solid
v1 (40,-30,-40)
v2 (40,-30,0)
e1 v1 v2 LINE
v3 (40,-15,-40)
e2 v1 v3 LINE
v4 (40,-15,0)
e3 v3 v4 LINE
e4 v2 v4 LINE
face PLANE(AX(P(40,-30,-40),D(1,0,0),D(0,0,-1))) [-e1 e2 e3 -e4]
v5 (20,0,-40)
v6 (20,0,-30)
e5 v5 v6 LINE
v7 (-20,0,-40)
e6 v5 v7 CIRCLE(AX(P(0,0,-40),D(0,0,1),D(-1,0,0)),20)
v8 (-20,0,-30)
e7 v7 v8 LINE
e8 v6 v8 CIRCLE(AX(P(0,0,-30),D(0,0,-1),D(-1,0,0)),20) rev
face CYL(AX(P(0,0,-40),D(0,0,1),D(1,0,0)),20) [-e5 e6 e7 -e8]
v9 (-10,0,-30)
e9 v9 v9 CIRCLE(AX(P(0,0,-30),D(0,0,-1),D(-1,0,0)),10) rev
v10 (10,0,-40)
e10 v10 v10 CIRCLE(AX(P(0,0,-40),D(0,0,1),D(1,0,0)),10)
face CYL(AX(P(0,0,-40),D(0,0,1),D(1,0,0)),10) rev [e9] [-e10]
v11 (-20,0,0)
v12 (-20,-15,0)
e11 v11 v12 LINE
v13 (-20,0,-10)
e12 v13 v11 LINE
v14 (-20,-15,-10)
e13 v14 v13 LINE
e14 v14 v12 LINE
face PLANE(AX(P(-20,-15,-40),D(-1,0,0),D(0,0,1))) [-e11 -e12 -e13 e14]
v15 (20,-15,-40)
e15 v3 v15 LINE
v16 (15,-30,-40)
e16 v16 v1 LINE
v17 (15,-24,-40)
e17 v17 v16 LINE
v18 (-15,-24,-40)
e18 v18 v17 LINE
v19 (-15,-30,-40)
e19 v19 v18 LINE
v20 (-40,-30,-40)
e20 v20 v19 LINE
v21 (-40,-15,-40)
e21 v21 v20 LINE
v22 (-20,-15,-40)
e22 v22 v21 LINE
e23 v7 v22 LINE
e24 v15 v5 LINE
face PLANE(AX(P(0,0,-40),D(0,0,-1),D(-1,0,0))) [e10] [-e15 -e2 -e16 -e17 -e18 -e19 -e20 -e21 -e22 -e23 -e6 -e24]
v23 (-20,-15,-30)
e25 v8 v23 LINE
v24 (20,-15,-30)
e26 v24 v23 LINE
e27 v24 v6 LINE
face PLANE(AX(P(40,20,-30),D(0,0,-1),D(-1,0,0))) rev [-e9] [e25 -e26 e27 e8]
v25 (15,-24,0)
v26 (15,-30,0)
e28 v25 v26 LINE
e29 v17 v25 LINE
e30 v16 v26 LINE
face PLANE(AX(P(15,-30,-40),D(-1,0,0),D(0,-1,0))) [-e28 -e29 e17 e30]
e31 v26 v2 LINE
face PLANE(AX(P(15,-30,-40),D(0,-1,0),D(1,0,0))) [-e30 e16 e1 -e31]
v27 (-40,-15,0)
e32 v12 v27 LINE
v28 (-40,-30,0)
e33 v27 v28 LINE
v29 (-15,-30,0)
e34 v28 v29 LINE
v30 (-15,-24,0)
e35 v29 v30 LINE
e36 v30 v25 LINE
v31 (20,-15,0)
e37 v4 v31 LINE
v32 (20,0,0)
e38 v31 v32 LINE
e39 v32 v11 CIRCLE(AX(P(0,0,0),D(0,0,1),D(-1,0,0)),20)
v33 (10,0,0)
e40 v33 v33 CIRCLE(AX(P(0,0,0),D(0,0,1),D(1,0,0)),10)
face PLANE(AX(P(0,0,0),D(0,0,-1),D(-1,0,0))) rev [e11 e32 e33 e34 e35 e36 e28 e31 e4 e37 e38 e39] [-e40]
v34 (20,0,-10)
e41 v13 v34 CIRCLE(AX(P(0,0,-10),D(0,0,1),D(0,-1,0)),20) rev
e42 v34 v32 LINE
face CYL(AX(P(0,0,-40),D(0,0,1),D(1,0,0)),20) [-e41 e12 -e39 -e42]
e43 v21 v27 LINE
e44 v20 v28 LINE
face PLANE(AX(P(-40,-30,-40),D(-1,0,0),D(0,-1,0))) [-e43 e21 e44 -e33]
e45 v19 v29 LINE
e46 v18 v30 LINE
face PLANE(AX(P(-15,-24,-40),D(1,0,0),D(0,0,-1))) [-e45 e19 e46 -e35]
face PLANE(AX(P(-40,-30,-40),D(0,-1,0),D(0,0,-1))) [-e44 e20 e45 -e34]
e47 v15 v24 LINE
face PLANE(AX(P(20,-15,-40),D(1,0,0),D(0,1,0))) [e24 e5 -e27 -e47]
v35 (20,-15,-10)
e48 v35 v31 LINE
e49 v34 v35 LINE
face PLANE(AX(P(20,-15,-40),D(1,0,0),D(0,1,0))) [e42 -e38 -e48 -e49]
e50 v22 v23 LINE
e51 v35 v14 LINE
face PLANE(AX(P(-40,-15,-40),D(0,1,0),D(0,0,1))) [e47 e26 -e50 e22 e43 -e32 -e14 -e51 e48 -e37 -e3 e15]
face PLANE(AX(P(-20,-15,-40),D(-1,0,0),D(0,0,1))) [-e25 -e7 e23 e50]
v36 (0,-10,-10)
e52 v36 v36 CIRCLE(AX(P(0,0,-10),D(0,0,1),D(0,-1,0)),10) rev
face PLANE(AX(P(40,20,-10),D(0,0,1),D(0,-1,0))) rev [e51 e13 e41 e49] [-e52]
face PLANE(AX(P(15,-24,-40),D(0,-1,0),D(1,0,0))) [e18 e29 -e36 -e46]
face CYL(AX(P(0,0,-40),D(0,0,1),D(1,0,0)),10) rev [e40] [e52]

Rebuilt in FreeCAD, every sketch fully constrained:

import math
import FreeCAD as App
import Part
import Sketcher
from FreeCAD import Vector
Q = App.Units.Quantity


def add_polygon(sketch, points):
    """Adds a closed chain of lines whose ends are joined by coincident constraints."""
    first, n = sketch.GeometryCount, len(points)
    for a, b in zip(points, points[1:] + points[:1]):
        sketch.addGeometry(Part.LineSegment(App.Vector(*a, 0), App.Vector(*b, 0)), False)
    for i in range(n):
        sketch.addConstraint(Sketcher.Constraint("Coincident", first + i, 2, first + (i + 1) % n, 1))

doc = App.newDocument("Part")
body = doc.addObject("PartDesign::Body", "Body")

sketch1 = body.newObject("Sketcher::SketchObject", "Sketch")
sketch1.AttachmentSupport = (doc.getObject("XY_Plane"), [""])
sketch1.MapMode = "FlatFace"
sketch1.addGeometry([
    Part.LineSegment(Vector(15, -24, 0), Vector(15, -30, 0)),
    Part.LineSegment(Vector(15, -30, 0), Vector(40, -30, 0)),
    Part.LineSegment(Vector(40, -30, 0), Vector(40, -15, 0)),
    Part.LineSegment(Vector(40, -15, 0), Vector(20, -15, 0)),
    Part.LineSegment(Vector(20, -15, 0), Vector(20, 0, 0)),
    Part.ArcOfCircle(Part.Circle(Vector(0, 0, 0), Vector(0, 0, 1), 20), math.radians(0), math.radians(180)),
    Part.LineSegment(Vector(-20, 0, 0), Vector(-20, -15, 0)),
    Part.LineSegment(Vector(-20, -15, 0), Vector(-40, -15, 0)),
    Part.LineSegment(Vector(-40, -15, 0), Vector(-40, -30, 0)),
    Part.LineSegment(Vector(-40, -30, 0), Vector(-15, -30, 0)),
    Part.LineSegment(Vector(-15, -30, 0), Vector(-15, -24, 0)),
    Part.LineSegment(Vector(-15, -24, 0), Vector(15, -24, 0)),
    Part.Circle(Vector(0, 0, 0), Vector(0, 0, 1), 10),
], False)
sketch1.addConstraint([
    Sketcher.Constraint("Coincident", 0, 2, 1, 1),
    Sketcher.Constraint("Coincident", 1, 2, 2, 1),
    Sketcher.Constraint("Coincident", 2, 2, 3, 1),
    Sketcher.Constraint("Coincident", 3, 2, 4, 1),
    Sketcher.Constraint("Tangent", 4, 2, 5, 1),
    Sketcher.Constraint("Tangent", 5, 2, 6, 1),
    Sketcher.Constraint("Coincident", 6, 2, 7, 1),
    Sketcher.Constraint("Coincident", 7, 2, 8, 1),
    Sketcher.Constraint("Coincident", 8, 2, 9, 1),
    Sketcher.Constraint("Coincident", 9, 2, 10, 1),
    Sketcher.Constraint("Coincident", 10, 2, 11, 1),
    Sketcher.Constraint("Coincident", 11, 2, 0, 1),
    Sketcher.Constraint("Vertical", 0),
    Sketcher.Constraint("Horizontal", 1),
    Sketcher.Constraint("Vertical", 2),
    Sketcher.Constraint("Horizontal", 3),
    Sketcher.Constraint("Vertical", 4),
    Sketcher.Constraint("Vertical", 6),
    Sketcher.Constraint("Horizontal", 7),
    Sketcher.Constraint("Vertical", 8),
    Sketcher.Constraint("Horizontal", 9),
    Sketcher.Constraint("Vertical", 10),
    Sketcher.Constraint("Horizontal", 11),
    Sketcher.Constraint("Coincident", 5, 3, -1, 1),
    Sketcher.Constraint("Coincident", 12, 3, -1, 1),
    Sketcher.Constraint("Symmetric", 2, 2, 7, 2, -2),
    Sketcher.Constraint("Symmetric", 0, 2, 9, 2, -2),
    Sketcher.Constraint("Equal", 2, 4),
    Sketcher.Constraint("Diameter", 12, Q("20 mm")),
    Sketcher.Constraint("Radius", 5, Q("20 mm")),
    Sketcher.Constraint("DistanceX", 1, 1, 1, 2, Q("25 mm")),
    Sketcher.Constraint("DistanceX", 3, 2, 3, 1, Q("20 mm")),
    Sketcher.Constraint("DistanceY", 0, 2, 0, 1, Q("6 mm")),
    Sketcher.Constraint("DistanceY", 2, 1, 2, 2, Q("15 mm")),
])
pad1 = body.newObject("PartDesign::Pad", "Pad")
pad1.Profile = sketch1
pad1.Length = 40
pad1.Reversed = True

sketch2 = body.newObject("Sketcher::SketchObject", "Sketch001")
sketch2.AttachmentSupport = (doc.getObject("YZ_Plane"), [""])
sketch2.MapMode = "FlatFace"
sketch2.AttachmentOffset = App.Placement(Vector(0, 0, -20), App.Rotation())
add_polygon(sketch2, [(20, -30), (-15, -30), (-15, -10), (20, -10)])
sketch2.addConstraint([
    Sketcher.Constraint("Horizontal", 0),
    Sketcher.Constraint("Vertical", 1),
    Sketcher.Constraint("Horizontal", 2),
    Sketcher.Constraint("Vertical", 3),
    Sketcher.Constraint("DistanceX", 0, 2, 0, 1, Q("35 mm")),
    Sketcher.Constraint("DistanceY", 1, 1, 1, 2, Q("20 mm")),
    Sketcher.Constraint("DistanceX", 0, 2, -1, 1, Q("15 mm")),
    Sketcher.Constraint("DistanceY", 0, 2, -1, 1, Q("30 mm")),
])
pocket1 = body.newObject("PartDesign::Pocket", "Pocket")
pocket1.Profile = sketch2
pocket1.Type = "ThroughAll"
pocket1.Midplane = True

doc.recompute()
